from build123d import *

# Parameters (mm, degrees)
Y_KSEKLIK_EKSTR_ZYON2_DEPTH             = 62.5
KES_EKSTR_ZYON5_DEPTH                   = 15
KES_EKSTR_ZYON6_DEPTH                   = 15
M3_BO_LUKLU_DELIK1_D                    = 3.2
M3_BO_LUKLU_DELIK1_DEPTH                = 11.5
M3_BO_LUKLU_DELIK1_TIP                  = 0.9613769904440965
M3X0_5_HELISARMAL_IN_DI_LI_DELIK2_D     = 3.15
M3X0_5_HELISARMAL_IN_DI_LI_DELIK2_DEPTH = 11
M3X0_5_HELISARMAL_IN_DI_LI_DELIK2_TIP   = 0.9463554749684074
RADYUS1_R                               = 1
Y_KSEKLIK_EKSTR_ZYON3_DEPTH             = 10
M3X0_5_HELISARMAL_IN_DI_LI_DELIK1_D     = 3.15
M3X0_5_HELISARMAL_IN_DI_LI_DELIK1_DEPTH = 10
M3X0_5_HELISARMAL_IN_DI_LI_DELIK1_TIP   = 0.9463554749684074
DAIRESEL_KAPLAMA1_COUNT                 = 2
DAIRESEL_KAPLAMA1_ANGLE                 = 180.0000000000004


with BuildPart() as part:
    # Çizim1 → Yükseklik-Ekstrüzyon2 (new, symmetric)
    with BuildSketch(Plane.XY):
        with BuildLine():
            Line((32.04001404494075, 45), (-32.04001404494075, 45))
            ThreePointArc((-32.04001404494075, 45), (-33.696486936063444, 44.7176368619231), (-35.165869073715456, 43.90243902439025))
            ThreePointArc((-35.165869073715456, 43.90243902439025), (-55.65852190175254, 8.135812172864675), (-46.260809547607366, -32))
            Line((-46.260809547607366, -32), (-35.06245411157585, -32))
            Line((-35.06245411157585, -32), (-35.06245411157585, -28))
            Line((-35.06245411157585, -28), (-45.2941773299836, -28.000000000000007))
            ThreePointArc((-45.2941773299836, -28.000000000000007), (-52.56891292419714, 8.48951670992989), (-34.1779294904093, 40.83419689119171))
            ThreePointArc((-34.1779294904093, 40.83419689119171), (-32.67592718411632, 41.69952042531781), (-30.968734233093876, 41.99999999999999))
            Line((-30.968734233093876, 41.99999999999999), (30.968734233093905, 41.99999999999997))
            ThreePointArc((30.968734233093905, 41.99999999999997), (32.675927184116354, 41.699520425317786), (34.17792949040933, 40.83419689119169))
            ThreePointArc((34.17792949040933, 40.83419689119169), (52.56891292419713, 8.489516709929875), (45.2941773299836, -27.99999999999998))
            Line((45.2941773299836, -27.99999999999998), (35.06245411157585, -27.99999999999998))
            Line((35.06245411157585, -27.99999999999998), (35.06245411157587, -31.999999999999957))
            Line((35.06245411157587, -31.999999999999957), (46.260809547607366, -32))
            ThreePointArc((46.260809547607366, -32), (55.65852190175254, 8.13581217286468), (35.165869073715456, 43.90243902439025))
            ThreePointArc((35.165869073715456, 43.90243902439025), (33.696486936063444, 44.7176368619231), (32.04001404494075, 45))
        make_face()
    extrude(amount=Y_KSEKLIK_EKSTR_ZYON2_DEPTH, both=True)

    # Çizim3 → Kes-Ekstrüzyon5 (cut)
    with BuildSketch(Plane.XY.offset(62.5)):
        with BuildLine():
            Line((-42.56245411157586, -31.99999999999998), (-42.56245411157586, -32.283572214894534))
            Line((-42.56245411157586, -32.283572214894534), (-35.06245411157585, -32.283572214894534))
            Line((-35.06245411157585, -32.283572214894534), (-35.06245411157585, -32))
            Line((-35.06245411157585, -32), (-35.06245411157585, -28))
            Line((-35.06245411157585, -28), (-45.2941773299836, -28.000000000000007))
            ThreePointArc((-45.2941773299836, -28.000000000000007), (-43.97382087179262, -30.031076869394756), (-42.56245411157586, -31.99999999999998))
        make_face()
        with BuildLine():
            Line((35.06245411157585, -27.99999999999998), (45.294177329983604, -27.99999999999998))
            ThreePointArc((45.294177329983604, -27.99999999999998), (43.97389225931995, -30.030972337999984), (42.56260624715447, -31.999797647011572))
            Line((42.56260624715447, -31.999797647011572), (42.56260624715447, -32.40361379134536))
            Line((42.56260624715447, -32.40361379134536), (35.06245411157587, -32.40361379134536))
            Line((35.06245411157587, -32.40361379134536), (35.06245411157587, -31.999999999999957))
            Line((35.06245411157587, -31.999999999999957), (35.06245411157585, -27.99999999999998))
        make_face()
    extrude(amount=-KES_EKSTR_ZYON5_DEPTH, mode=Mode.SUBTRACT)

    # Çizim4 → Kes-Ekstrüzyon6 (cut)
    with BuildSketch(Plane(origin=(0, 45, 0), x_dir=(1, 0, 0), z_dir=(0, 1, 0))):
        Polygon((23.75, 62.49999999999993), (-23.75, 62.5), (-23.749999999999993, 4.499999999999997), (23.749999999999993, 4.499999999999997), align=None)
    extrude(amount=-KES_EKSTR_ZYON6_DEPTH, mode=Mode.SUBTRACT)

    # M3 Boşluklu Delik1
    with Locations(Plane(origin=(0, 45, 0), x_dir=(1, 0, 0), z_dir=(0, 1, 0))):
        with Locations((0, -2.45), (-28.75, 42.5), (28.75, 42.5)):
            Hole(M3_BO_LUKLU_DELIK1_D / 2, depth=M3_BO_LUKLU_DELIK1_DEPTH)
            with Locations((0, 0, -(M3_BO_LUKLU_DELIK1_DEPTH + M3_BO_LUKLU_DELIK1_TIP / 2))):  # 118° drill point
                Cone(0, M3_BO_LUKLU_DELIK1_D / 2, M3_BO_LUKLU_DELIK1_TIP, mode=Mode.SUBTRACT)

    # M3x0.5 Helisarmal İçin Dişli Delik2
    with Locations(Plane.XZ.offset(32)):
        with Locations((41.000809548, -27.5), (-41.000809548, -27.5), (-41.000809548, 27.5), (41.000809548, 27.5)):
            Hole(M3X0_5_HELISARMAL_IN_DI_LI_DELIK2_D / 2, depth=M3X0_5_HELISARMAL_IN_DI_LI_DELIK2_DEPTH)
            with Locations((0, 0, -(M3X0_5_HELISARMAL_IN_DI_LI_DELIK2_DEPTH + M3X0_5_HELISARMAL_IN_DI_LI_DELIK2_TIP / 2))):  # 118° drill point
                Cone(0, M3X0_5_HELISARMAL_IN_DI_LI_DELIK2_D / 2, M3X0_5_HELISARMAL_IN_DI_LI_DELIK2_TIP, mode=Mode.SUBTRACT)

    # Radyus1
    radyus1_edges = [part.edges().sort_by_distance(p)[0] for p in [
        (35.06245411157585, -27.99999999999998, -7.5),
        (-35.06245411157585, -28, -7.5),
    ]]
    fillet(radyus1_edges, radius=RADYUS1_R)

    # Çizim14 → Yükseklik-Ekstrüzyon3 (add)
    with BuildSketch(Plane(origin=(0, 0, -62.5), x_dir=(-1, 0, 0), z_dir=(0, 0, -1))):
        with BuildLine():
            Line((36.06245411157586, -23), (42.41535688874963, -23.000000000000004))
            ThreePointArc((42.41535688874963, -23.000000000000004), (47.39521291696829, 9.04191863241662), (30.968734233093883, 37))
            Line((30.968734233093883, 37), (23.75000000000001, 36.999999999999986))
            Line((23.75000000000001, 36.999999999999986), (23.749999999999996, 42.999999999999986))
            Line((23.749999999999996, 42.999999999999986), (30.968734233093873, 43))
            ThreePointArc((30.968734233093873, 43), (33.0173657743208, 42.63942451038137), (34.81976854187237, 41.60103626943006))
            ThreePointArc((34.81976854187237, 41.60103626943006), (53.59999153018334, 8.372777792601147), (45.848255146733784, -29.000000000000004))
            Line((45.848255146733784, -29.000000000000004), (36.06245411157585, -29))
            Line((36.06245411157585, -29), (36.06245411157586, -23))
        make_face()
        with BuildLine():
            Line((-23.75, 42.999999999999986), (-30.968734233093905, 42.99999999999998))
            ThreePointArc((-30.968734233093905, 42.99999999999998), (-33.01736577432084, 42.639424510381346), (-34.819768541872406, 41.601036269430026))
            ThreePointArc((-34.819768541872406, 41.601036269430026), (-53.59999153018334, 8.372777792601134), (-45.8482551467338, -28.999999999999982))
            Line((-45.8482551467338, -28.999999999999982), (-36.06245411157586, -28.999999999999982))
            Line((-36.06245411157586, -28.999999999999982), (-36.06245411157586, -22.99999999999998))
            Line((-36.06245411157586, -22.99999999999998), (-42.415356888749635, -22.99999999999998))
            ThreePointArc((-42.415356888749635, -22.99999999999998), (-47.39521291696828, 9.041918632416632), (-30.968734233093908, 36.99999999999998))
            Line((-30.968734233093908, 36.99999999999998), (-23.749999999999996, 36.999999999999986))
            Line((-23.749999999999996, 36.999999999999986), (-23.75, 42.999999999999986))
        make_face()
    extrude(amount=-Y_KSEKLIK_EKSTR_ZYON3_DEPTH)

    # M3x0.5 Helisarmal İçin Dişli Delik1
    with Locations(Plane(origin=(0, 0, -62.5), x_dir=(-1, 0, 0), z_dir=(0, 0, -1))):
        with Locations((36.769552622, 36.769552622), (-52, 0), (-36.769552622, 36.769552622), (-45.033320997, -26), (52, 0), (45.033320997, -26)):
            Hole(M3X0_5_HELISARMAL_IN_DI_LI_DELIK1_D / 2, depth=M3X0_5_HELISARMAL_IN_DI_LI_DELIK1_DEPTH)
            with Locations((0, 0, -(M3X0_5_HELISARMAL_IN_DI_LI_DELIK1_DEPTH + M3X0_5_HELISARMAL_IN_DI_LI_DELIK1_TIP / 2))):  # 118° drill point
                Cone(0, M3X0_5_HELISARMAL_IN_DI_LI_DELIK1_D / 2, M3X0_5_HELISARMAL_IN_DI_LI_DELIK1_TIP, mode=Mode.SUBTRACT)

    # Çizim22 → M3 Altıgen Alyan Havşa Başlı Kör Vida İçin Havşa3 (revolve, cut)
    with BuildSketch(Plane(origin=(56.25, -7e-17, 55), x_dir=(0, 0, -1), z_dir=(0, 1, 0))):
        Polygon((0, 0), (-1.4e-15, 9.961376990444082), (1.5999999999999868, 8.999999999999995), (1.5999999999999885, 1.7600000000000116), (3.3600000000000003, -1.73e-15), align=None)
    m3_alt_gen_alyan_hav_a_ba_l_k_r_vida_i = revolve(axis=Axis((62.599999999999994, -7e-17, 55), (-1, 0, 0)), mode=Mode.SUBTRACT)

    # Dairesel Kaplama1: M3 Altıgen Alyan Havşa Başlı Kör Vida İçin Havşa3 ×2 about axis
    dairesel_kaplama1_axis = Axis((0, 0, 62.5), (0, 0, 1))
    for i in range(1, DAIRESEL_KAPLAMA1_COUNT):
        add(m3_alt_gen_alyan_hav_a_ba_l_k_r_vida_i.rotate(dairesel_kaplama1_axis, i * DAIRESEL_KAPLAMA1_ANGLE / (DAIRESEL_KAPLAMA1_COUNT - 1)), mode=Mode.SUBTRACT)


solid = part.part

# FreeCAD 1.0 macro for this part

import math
import FreeCAD as App
import Part
import Sketcher
Q = App.Units.Quantity


def edges_at(feature, points):
    """Names of the edges that pass closest to the given points."""
    edges = feature.Shape.Edges
    near = lambda p: min(range(len(edges)), key=lambda i: edges[i].distToShape(Part.Vertex(*p))[0])
    return sorted({f"Edge{near(p) + 1}" for p in points})

doc = App.newDocument("Part")
body = doc.addObject("PartDesign::Body", "Body")

# Sketch on XY plane
sketch1 = doc.addObject("Sketcher::SketchObject", "Sketch")
body.addObject(sketch1)
sketch1.AttachmentSupport = (doc.XY_Plane, [""])
sketch1.MapMode = "FlatFace"
sketch1.addGeometry(Part.LineSegment(App.Vector(32, 45, 0), App.Vector(-32, 45, 0)), False)
sketch1.addGeometry(Part.ArcOfCircle(Part.Circle(App.Vector(-32, 40, 0), App.Vector(0, 0, 1), 5), math.radians(90), math.radians(129)), False)
sketch1.addGeometry(Part.ArcOfCircle(Part.Circle(App.Vector(0, 0, 0), App.Vector(0, 0, 1), 56.2), math.radians(129), math.radians(215)), False)
sketch1.addGeometry(Part.LineSegment(App.Vector(-46.3, -32, 0), App.Vector(-35.1, -32, 0)), False)
sketch1.addGeometry(Part.LineSegment(App.Vector(-35.1, -32, 0), App.Vector(-35.1, -28, 0)), False)
sketch1.addGeometry(Part.LineSegment(App.Vector(-35.1, -28, 0), App.Vector(-45.3, -28, 0)), False)
sketch1.addGeometry(Part.ArcOfCircle(Part.Circle(App.Vector(0, 0, 0), App.Vector(0, 0, 1), 53.2), math.radians(130), math.radians(212)), False)
sketch1.addGeometry(Part.ArcOfCircle(Part.Circle(App.Vector(-31, 37, 0), App.Vector(0, 0, 1), 5), math.radians(90), math.radians(130)), False)
sketch1.addGeometry(Part.LineSegment(App.Vector(-31, 42, 0), App.Vector(31, 42, 0)), False)
sketch1.addGeometry(Part.ArcOfCircle(Part.Circle(App.Vector(31, 37, 0), App.Vector(0, 0, 1), 5), math.radians(50), math.radians(90)), False)
sketch1.addGeometry(Part.ArcOfCircle(Part.Circle(App.Vector(0, 0, 0), App.Vector(0, 0, 1), 53.2), math.radians(-32), math.radians(50)), False)
sketch1.addGeometry(Part.LineSegment(App.Vector(45.3, -28, 0), App.Vector(35.1, -28, 0)), False)
sketch1.addGeometry(Part.LineSegment(App.Vector(35.1, -28, 0), App.Vector(35.1, -32, 0)), False)
sketch1.addGeometry(Part.LineSegment(App.Vector(35.1, -32, 0), App.Vector(46.3, -32, 0)), False)
sketch1.addGeometry(Part.ArcOfCircle(Part.Circle(App.Vector(0, 0, 0), App.Vector(0, 0, 1), 56.2), math.radians(-35), math.radians(51)), False)
sketch1.addGeometry(Part.ArcOfCircle(Part.Circle(App.Vector(32, 40, 0), App.Vector(0, 0, 1), 5), math.radians(51), math.radians(90)), False)
sketch1.addConstraint(Sketcher.Constraint("Tangent", 0, 2, 1, 1))
sketch1.addConstraint(Sketcher.Constraint("Tangent", 1, 2, 2, 1))
sketch1.addConstraint(Sketcher.Constraint("Coincident", 2, 2, 3, 1))
sketch1.addConstraint(Sketcher.Constraint("Coincident", 3, 2, 4, 1))
sketch1.addConstraint(Sketcher.Constraint("Coincident", 4, 2, 5, 1))
sketch1.addConstraint(Sketcher.Constraint("Coincident", 5, 2, 6, 2))
sketch1.addConstraint(Sketcher.Constraint("Tangent", 6, 1, 7, 2))
sketch1.addConstraint(Sketcher.Constraint("Tangent", 7, 1, 8, 1))
sketch1.addConstraint(Sketcher.Constraint("Tangent", 8, 2, 9, 2))
sketch1.addConstraint(Sketcher.Constraint("Tangent", 9, 1, 10, 2))
sketch1.addConstraint(Sketcher.Constraint("Coincident", 10, 1, 11, 1))
sketch1.addConstraint(Sketcher.Constraint("Coincident", 11, 2, 12, 1))
sketch1.addConstraint(Sketcher.Constraint("Coincident", 12, 2, 13, 1))
sketch1.addConstraint(Sketcher.Constraint("Coincident", 13, 2, 14, 1))
sketch1.addConstraint(Sketcher.Constraint("Tangent", 14, 2, 15, 1))
sketch1.addConstraint(Sketcher.Constraint("Tangent", 15, 2, 0, 1))
sketch1.addConstraint(Sketcher.Constraint("Horizontal", 0))
sketch1.addConstraint(Sketcher.Constraint("Horizontal", 3))
sketch1.addConstraint(Sketcher.Constraint("Vertical", 4))
sketch1.addConstraint(Sketcher.Constraint("Horizontal", 5))
sketch1.addConstraint(Sketcher.Constraint("Horizontal", 8))
sketch1.addConstraint(Sketcher.Constraint("Horizontal", 11))
sketch1.addConstraint(Sketcher.Constraint("Vertical", 12))
sketch1.addConstraint(Sketcher.Constraint("Horizontal", 13))
sketch1.addConstraint(Sketcher.Constraint("Coincident", 2, 3, -1, 1))
sketch1.addConstraint(Sketcher.Constraint("Coincident", 6, 3, -1, 1))
sketch1.addConstraint(Sketcher.Constraint("Coincident", 10, 3, -1, 1))
sketch1.addConstraint(Sketcher.Constraint("Coincident", 14, 3, -1, 1))
sketch1.addConstraint(Sketcher.Constraint("Equal", 1, 7))
sketch1.addConstraint(Sketcher.Constraint("Equal", 7, 9))
sketch1.addConstraint(Sketcher.Constraint("Equal", 6, 10))
sketch1.addConstraint(Sketcher.Constraint("Equal", 2, 14))
sketch1.addConstraint(Sketcher.Constraint("Equal", 9, 15))
sketch1.addConstraint(Sketcher.Constraint("Symmetric", 4, 2, 11, 2, -2))
sketch1.addConstraint(Sketcher.Constraint("Horizontal", 3, 2, 12, 2))
sketch1.addConstraint(Sketcher.Constraint("Radius", 1, Q("5 mm")))
sketch1.addConstraint(Sketcher.Constraint("DistanceY", 4, 1, 4, 2, Q("4 mm")))
sketch1.addConstraint(Sketcher.Constraint("Radius", 2, Q("56.25 mm")))
sketch1.addConstraint(Sketcher.Constraint("Radius", 6, Q("53.25 mm")))
sketch1.addConstraint(Sketcher.Constraint("DistanceY", -1, 1, 1, 3, Q("40 mm")))
sketch1.addConstraint(Sketcher.Constraint("DistanceY", -1, 1, 7, 3, Q("37 mm")))
sketch1.addConstraint(Sketcher.Constraint("DistanceY", 2, 2, -1, 1, Q("32 mm")))
sketch1.addConstraint(Sketcher.Constraint("DistanceX", 3, 1, 3, 2, Q("11.198355 mm")))
pad1 = doc.addObject("PartDesign::Pad", "Pad")
body.addObject(pad1)
pad1.Profile = sketch1
pad1.Length = 125
pad1.Midplane = True

# Sketch on XY plane
sketch2 = doc.addObject("Sketcher::SketchObject", "Sketch001")
body.addObject(sketch2)
sketch2.AttachmentSupport = (doc.XY_Plane, [""])
sketch2.MapMode = "FlatFace"
sketch2.AttachmentOffset = App.Placement(App.Vector(0, 0, 62.5), App.Rotation())
sketch2.addGeometry(Part.LineSegment(App.Vector(-42.56, -32, 0), App.Vector(-42.56, -32.28, 0)), False)
sketch2.addGeometry(Part.LineSegment(App.Vector(-42.56, -32.28, 0), App.Vector(-35.06, -32.28, 0)), False)
sketch2.addGeometry(Part.LineSegment(App.Vector(-35.06, -32.28, 0), App.Vector(-35.06, -28, 0)), False)
sketch2.addGeometry(Part.LineSegment(App.Vector(-35.06, -28, 0), App.Vector(-45.29, -28, 0)), False)
sketch2.addGeometry(Part.ArcOfCircle(Part.Circle(App.Vector(0, 0, 0), App.Vector(0, 0, 1), 53.25), math.radians(-148.28), math.radians(-143.06)), False)
sketch2.addGeometry(Part.LineSegment(App.Vector(45.29, -28, 0), App.Vector(35.06, -28, 0)), False)
sketch2.addGeometry(Part.LineSegment(App.Vector(35.06, -28, 0), App.Vector(35.06, -32.4, 0)), False)
sketch2.addGeometry(Part.LineSegment(App.Vector(35.06, -32.4, 0), App.Vector(42.56, -32.4, 0)), False)
sketch2.addGeometry(Part.LineSegment(App.Vector(42.56, -32.4, 0), App.Vector(42.56, -32, 0)), False)
sketch2.addGeometry(Part.ArcOfCircle(Part.Circle(App.Vector(0, 0, 0), App.Vector(0, 0, 1), 53.25), math.radians(-36.94), math.radians(-31.72)), False)
sketch2.addConstraint(Sketcher.Constraint("Coincident", 0, 2, 1, 1))
sketch2.addConstraint(Sketcher.Constraint("Coincident", 1, 2, 2, 1))
sketch2.addConstraint(Sketcher.Constraint("Coincident", 2, 2, 3, 1))
sketch2.addConstraint(Sketcher.Constraint("Coincident", 3, 2, 4, 1))
sketch2.addConstraint(Sketcher.Constraint("Coincident", 4, 2, 0, 1))
sketch2.addConstraint(Sketcher.Constraint("Coincident", 5, 2, 6, 1))
sketch2.addConstraint(Sketcher.Constraint("Coincident", 6, 2, 7, 1))
sketch2.addConstraint(Sketcher.Constraint("Coincident", 7, 2, 8, 1))
sketch2.addConstraint(Sketcher.Constraint("Coincident", 8, 2, 9, 1))
sketch2.addConstraint(Sketcher.Constraint("Coincident", 9, 2, 5, 1))
sketch2.addConstraint(Sketcher.Constraint("Vertical", 0))
sketch2.addConstraint(Sketcher.Constraint("Horizontal", 1))
sketch2.addConstraint(Sketcher.Constraint("Vertical", 2))
sketch2.addConstraint(Sketcher.Constraint("Horizontal", 3))
sketch2.addConstraint(Sketcher.Constraint("Horizontal", 5))
sketch2.addConstraint(Sketcher.Constraint("Vertical", 6))
sketch2.addConstraint(Sketcher.Constraint("Horizontal", 7))
sketch2.addConstraint(Sketcher.Constraint("Vertical", 8))
sketch2.addConstraint(Sketcher.Constraint("Coincident", 4, 3, -1, 1))
sketch2.addConstraint(Sketcher.Constraint("Coincident", 9, 3, -1, 1))
sketch2.addConstraint(Sketcher.Constraint("Equal", 4, 9))
sketch2.addConstraint(Sketcher.Constraint("Symmetric", 2, 2, 5, 2, -2))
sketch2.addConstraint(Sketcher.Constraint("Radius", 4, Q("53.25 mm")))
sketch2.addConstraint(Sketcher.Constraint("DistanceX", 1, 1, 1, 2, Q("7.5 mm")))
sketch2.addConstraint(Sketcher.Constraint("DistanceY", 2, 2, -1, 1, Q("28 mm")))
sketch2.addConstraint(Sketcher.Constraint("DistanceY", 4, 2, -1, 1, Q("32 mm")))
sketch2.addConstraint(Sketcher.Constraint("DistanceX", 7, 1, 7, 2, Q("7.500152 mm")))
sketch2.addConstraint(Sketcher.Constraint("DistanceY", 0, 2, 0, 1, Q("0.283572 mm")))
sketch2.addConstraint(Sketcher.Constraint("DistanceY", 6, 2, 6, 1, Q("4.403614 mm")))
pocket1 = doc.addObject("PartDesign::Pocket", "Pocket")
body.addObject(pocket1)
pocket1.Profile = sketch2
pocket1.Length = 15

# Sketch on XZ plane
sketch3 = doc.addObject("Sketcher::SketchObject", "Sketch002")
body.addObject(sketch3)
sketch3.AttachmentSupport = (doc.XZ_Plane, [""])
sketch3.MapMode = "FlatFace"
sketch3.AttachmentOffset = App.Placement(App.Vector(0, 0, -45), App.Rotation())
sketch3.addGeometry(Part.LineSegment(App.Vector(24, -62, 0), App.Vector(-24, -62, 0)), False)
sketch3.addGeometry(Part.LineSegment(App.Vector(-24, -62, 0), App.Vector(-24, -4, 0)), False)
sketch3.addGeometry(Part.LineSegment(App.Vector(-24, -4, 0), App.Vector(24, -4, 0)), False)
sketch3.addGeometry(Part.LineSegment(App.Vector(24, -4, 0), App.Vector(24, -62, 0)), False)
sketch3.addConstraint(Sketcher.Constraint("Coincident", 0, 2, 1, 1))
sketch3.addConstraint(Sketcher.Constraint("Coincident", 1, 2, 2, 1))
sketch3.addConstraint(Sketcher.Constraint("Coincident", 2, 2, 3, 1))
sketch3.addConstraint(Sketcher.Constraint("Coincident", 3, 2, 0, 1))
sketch3.addConstraint(Sketcher.Constraint("Horizontal", 0))
sketch3.addConstraint(Sketcher.Constraint("Vertical", 1))
sketch3.addConstraint(Sketcher.Constraint("Horizontal", 2))
sketch3.addConstraint(Sketcher.Constraint("Vertical", 3))
sketch3.addConstraint(Sketcher.Constraint("DistanceY", 1, 1, 1, 2, Q("58 mm")))
sketch3.addConstraint(Sketcher.Constraint("DistanceX", 0, 2, 0, 1, Q("47.5 mm")))
sketch3.addConstraint(Sketcher.Constraint("DistanceY", 0, 2, -1, 1, Q("62.5 mm")))
sketch3.addConstraint(Sketcher.Constraint("DistanceX", 0, 2, -1, 1, Q("23.75 mm")))
pocket2 = doc.addObject("PartDesign::Pocket", "Pocket001")
body.addObject(pocket2)
pocket2.Profile = sketch3
pocket2.Length = 15
pocket2.Reversed = True

# Sketch on XZ plane
sketch4 = doc.addObject("Sketcher::SketchObject", "Sketch003")
body.addObject(sketch4)
sketch4.AttachmentSupport = (doc.XZ_Plane, [""])
sketch4.MapMode = "FlatFace"
sketch4.AttachmentOffset = App.Placement(App.Vector(0, 0, -45), App.Rotation())
sketch4.addGeometry(Part.Circle(App.Vector(0, 2.5, 0), App.Vector(0, 0, 1), 1.6), False)
sketch4.addGeometry(Part.Circle(App.Vector(-28.8, -42.5, 0), App.Vector(0, 0, 1), 1.6), False)
sketch4.addGeometry(Part.Circle(App.Vector(28.8, -42.5, 0), App.Vector(0, 0, 1), 1.6), False)
sketch4.addConstraint(Sketcher.Constraint("Equal", 0, 1))
sketch4.addConstraint(Sketcher.Constraint("Equal", 1, 2))
sketch4.addConstraint(Sketcher.Constraint("Symmetric", 1, 3, 2, 3, -2))
sketch4.addConstraint(Sketcher.Constraint("PointOnObject", 0, 3, -2))
sketch4.addConstraint(Sketcher.Constraint("Diameter", 0, Q("3.2 mm")))
sketch4.addConstraint(Sketcher.Constraint("DistanceY", 1, 3, -1, 1, Q("42.5 mm")))
sketch4.addConstraint(Sketcher.Constraint("DistanceX", 1, 3, 2, 3, Q("57.5 mm")))
sketch4.addConstraint(Sketcher.Constraint("DistanceY", -1, 1, 0, 3, Q("2.45 mm")))
doc.recompute()
hole = doc.addObject("PartDesign::Hole", "Hole")
body.addObject(hole)
hole.Profile = sketch4
hole.ThreadType = "None"
hole.Diameter = 3.2
hole.DepthType = "Dimension"
hole.Depth = 11.5
hole.DrillPoint = "Angled"
hole.DrillPointAngle = 118
hole.Reversed = True

# Sketch on XZ plane
sketch5 = doc.addObject("Sketcher::SketchObject", "Sketch004")
body.addObject(sketch5)
sketch5.AttachmentSupport = (doc.XZ_Plane, [""])
sketch5.MapMode = "FlatFace"
sketch5.AttachmentOffset = App.Placement(App.Vector(0, 0, 32), App.Rotation())
sketch5.addGeometry(Part.Circle(App.Vector(41, -27.5, 0), App.Vector(0, 0, 1), 1.6), False)
sketch5.addGeometry(Part.Circle(App.Vector(-41, -27.5, 0), App.Vector(0, 0, 1), 1.6), False)
sketch5.addGeometry(Part.Circle(App.Vector(-41, 27.5, 0), App.Vector(0, 0, 1), 1.6), False)
sketch5.addGeometry(Part.Circle(App.Vector(41, 27.5, 0), App.Vector(0, 0, 1), 1.6), False)
sketch5.addConstraint(Sketcher.Constraint("Equal", 0, 1))
sketch5.addConstraint(Sketcher.Constraint("Equal", 1, 2))
sketch5.addConstraint(Sketcher.Constraint("Equal", 2, 3))
sketch5.addConstraint(Sketcher.Constraint("Symmetric", 0, 3, 2, 3, -1, 1))
sketch5.addConstraint(Sketcher.Constraint("Symmetric", 1, 3, 3, 3, -1, 1))
sketch5.addConstraint(Sketcher.Constraint("Symmetric", 0, 3, 1, 3, -2))
sketch5.addConstraint(Sketcher.Constraint("Diameter", 0, Q("3.15 mm")))
sketch5.addConstraint(Sketcher.Constraint("DistanceY", 1, 3, 2, 3, Q("55 mm")))
sketch5.addConstraint(Sketcher.Constraint("DistanceX", -1, 1, 0, 3, Q("41.00081 mm")))
doc.recompute()
hole2 = doc.addObject("PartDesign::Hole", "Hole001")
body.addObject(hole2)
hole2.Profile = sketch5
hole2.ThreadType = "None"
hole2.Diameter = 3.15
hole2.DepthType = "Dimension"
hole2.Depth = 11
hole2.DrillPoint = "Angled"
hole2.DrillPointAngle = 118
doc.recompute()

fillet = doc.addObject("PartDesign::Fillet", "Fillet")
body.addObject(fillet)
fillet.Base = (hole2, edges_at(hole2, [(35.062, -28, -7.5), (-35.062, -28, -7.5)]))
fillet.Radius = 1

# Sketch on XY plane
sketch6 = doc.addObject("Sketcher::SketchObject", "Sketch005")
body.addObject(sketch6)
sketch6.AttachmentSupport = (doc.XY_Plane, [""])
sketch6.MapMode = "FlatFace"
sketch6.AttachmentOffset = App.Placement(App.Vector(0, 0, -62.5), App.Rotation())
sketch6.addGeometry(Part.LineSegment(App.Vector(-42.4, -23, 0), App.Vector(-36.1, -23, 0)), False)
sketch6.addGeometry(Part.LineSegment(App.Vector(-36.1, -23, 0), App.Vector(-36.1, -29, 0)), False)
sketch6.addGeometry(Part.LineSegment(App.Vector(-36.1, -29, 0), App.Vector(-45.8, -29, 0)), False)
sketch6.addGeometry(Part.ArcOfCircle(Part.Circle(App.Vector(0, 0, 0), App.Vector(0, 0, 1), 54.2), math.radians(130), math.radians(212)), False)
sketch6.addGeometry(Part.ArcOfCircle(Part.Circle(App.Vector(-31, 37, 0), App.Vector(0, 0, 1), 6), math.radians(90), math.radians(130)), False)
sketch6.addGeometry(Part.LineSegment(App.Vector(-31, 43, 0), App.Vector(-23.8, 43, 0)), False)
sketch6.addGeometry(Part.LineSegment(App.Vector(-23.8, 43, 0), App.Vector(-23.8, 37, 0)), False)
sketch6.addGeometry(Part.LineSegment(App.Vector(-23.8, 37, 0), App.Vector(-31, 37, 0)), False)
sketch6.addGeometry(Part.ArcOfCircle(Part.Circle(App.Vector(0, 0, 0), App.Vector(0, 0, 1), 48.2), math.radians(130), math.radians(208)), False)
sketch6.addGeometry(Part.LineSegment(App.Vector(23.8, 43, 0), App.Vector(31, 43, 0)), False)
sketch6.addGeometry(Part.ArcOfCircle(Part.Circle(App.Vector(31, 37, 0), App.Vector(0, 0, 1), 6), math.radians(50), math.radians(90)), False)
sketch6.addGeometry(Part.ArcOfCircle(Part.Circle(App.Vector(0, 0, 0), App.Vector(0, 0, 1), 54.2), math.radians(-32), math.radians(50)), False)
sketch6.addGeometry(Part.LineSegment(App.Vector(45.8, -29, 0), App.Vector(36.1, -29, 0)), False)
sketch6.addGeometry(Part.LineSegment(App.Vector(36.1, -29, 0), App.Vector(36.1, -23, 0)), False)
sketch6.addGeometry(Part.LineSegment(App.Vector(36.1, -23, 0), App.Vector(42.4, -23, 0)), False)
sketch6.addGeometry(Part.ArcOfCircle(Part.Circle(App.Vector(0, 0, 0), App.Vector(0, 0, 1), 48.2), math.radians(-28), math.radians(50)), False)
sketch6.addGeometry(Part.LineSegment(App.Vector(31, 37, 0), App.Vector(23.8, 37, 0)), False)
sketch6.addGeometry(Part.LineSegment(App.Vector(23.8, 37, 0), App.Vector(23.8, 43, 0)), False)
sketch6.addConstraint(Sketcher.Constraint("Coincident", 0, 2, 1, 1))
sketch6.addConstraint(Sketcher.Constraint("Coincident", 1, 2, 2, 1))
sketch6.addConstraint(Sketcher.Constraint("Coincident", 2, 2, 3, 2))
sketch6.addConstraint(Sketcher.Constraint("Tangent", 3, 1, 4, 2))
sketch6.addConstraint(Sketcher.Constraint("Tangent", 4, 1, 5, 1))
sketch6.addConstraint(Sketcher.Constraint("Coincident", 5, 2, 6, 1))
sketch6.addConstraint(Sketcher.Constraint("Coincident", 6, 2, 7, 1))
sketch6.addConstraint(Sketcher.Constraint("Coincident", 7, 2, 8, 1))
sketch6.addConstraint(Sketcher.Constraint("Coincident", 8, 2, 0, 1))
sketch6.addConstraint(Sketcher.Constraint("Tangent", 9, 2, 10, 2))
sketch6.addConstraint(Sketcher.Constraint("Tangent", 10, 1, 11, 2))
sketch6.addConstraint(Sketcher.Constraint("Coincident", 11, 1, 12, 1))
sketch6.addConstraint(Sketcher.Constraint("Coincident", 12, 2, 13, 1))
sketch6.addConstraint(Sketcher.Constraint("Coincident", 13, 2, 14, 1))
sketch6.addConstraint(Sketcher.Constraint("Coincident", 14, 2, 15, 1))
sketch6.addConstraint(Sketcher.Constraint("Coincident", 15, 2, 16, 1))
sketch6.addConstraint(Sketcher.Constraint("Coincident", 16, 2, 17, 1))
sketch6.addConstraint(Sketcher.Constraint("Coincident", 17, 2, 9, 1))
sketch6.addConstraint(Sketcher.Constraint("Horizontal", 0))
sketch6.addConstraint(Sketcher.Constraint("Vertical", 1))
sketch6.addConstraint(Sketcher.Constraint("Horizontal", 2))
sketch6.addConstraint(Sketcher.Constraint("Horizontal", 5))
sketch6.addConstraint(Sketcher.Constraint("Vertical", 6))
sketch6.addConstraint(Sketcher.Constraint("Horizontal", 7))
sketch6.addConstraint(Sketcher.Constraint("Horizontal", 9))
sketch6.addConstraint(Sketcher.Constraint("Horizontal", 12))
sketch6.addConstraint(Sketcher.Constraint("Vertical", 13))
sketch6.addConstraint(Sketcher.Constraint("Horizontal", 14))
sketch6.addConstraint(Sketcher.Constraint("Horizontal", 16))
sketch6.addConstraint(Sketcher.Constraint("Vertical", 17))
sketch6.addConstraint(Sketcher.Constraint("Coincident", 3, 3, -1, 1))
sketch6.addConstraint(Sketcher.Constraint("Coincident", 8, 3, -1, 1))
sketch6.addConstraint(Sketcher.Constraint("Coincident", 11, 3, -1, 1))
sketch6.addConstraint(Sketcher.Constraint("Coincident", 15, 3, -1, 1))
sketch6.addConstraint(Sketcher.Constraint("Coincident", 7, 2, 4, 3))
sketch6.addConstraint(Sketcher.Constraint("Coincident", 15, 2, 10, 3))
sketch6.addConstraint(Sketcher.Constraint("Equal", 4, 10))
sketch6.addConstraint(Sketcher.Constraint("Equal", 3, 11))
sketch6.addConstraint(Sketcher.Constraint("Symmetric", 1, 2, 12, 2, -2))
sketch6.addConstraint(Sketcher.Constraint("Symmetric", 6, 2, 16, 2, -2))
sketch6.addConstraint(Sketcher.Constraint("Horizontal", 8, 2, 13, 2))
sketch6.addConstraint(Sketcher.Constraint("Equal", 1, 6))
sketch6.addConstraint(Sketcher.Constraint("Radius", 4, Q("6 mm")))
sketch6.addConstraint(Sketcher.Constraint("Radius", 3, Q("54.25 mm")))
sketch6.addConstraint(Sketcher.Constraint("DistanceY", -1, 1, 4, 3, Q("37 mm")))
sketch6.addConstraint(Sketcher.Constraint("DistanceY", 0, 2, -1, 1, Q("23 mm")))
sketch6.addConstraint(Sketcher.Constraint("DistanceX", 5, 2, -1, 1, Q("23.75 mm")))
sketch6.addConstraint(Sketcher.Constraint("DistanceX", 2, 2, 2, 1, Q("9.785801 mm")))
pad2 = doc.addObject("PartDesign::Pad", "Pad001")
body.addObject(pad2)
pad2.Profile = sketch6
pad2.Length = 10

# Sketch on XY plane
sketch7 = doc.addObject("Sketcher::SketchObject", "Sketch006")
body.addObject(sketch7)
sketch7.AttachmentSupport = (doc.XY_Plane, [""])
sketch7.MapMode = "FlatFace"
sketch7.AttachmentOffset = App.Placement(App.Vector(0, 0, -62.5), App.Rotation())
sketch7.addGeometry(Part.Circle(App.Vector(-36.8, 36.8, 0), App.Vector(0, 0, 1), 1.6), False)
sketch7.addGeometry(Part.Circle(App.Vector(52, 0, 0), App.Vector(0, 0, 1), 1.6), False)
sketch7.addGeometry(Part.Circle(App.Vector(36.8, 36.8, 0), App.Vector(0, 0, 1), 1.6), False)
sketch7.addGeometry(Part.Circle(App.Vector(45, -26, 0), App.Vector(0, 0, 1), 1.6), False)
sketch7.addGeometry(Part.Circle(App.Vector(-52, 0, 0), App.Vector(0, 0, 1), 1.6), False)
sketch7.addGeometry(Part.Circle(App.Vector(-45, -26, 0), App.Vector(0, 0, 1), 1.6), False)
sketch7.addConstraint(Sketcher.Constraint("Equal", 0, 1))
sketch7.addConstraint(Sketcher.Constraint("Equal", 1, 2))
sketch7.addConstraint(Sketcher.Constraint("Equal", 2, 3))
sketch7.addConstraint(Sketcher.Constraint("Equal", 3, 4))
sketch7.addConstraint(Sketcher.Constraint("Equal", 4, 5))
sketch7.addConstraint(Sketcher.Constraint("Symmetric", 1, 3, 4, 3, -1, 1))
sketch7.addConstraint(Sketcher.Constraint("Symmetric", 0, 3, 2, 3, -2))
sketch7.addConstraint(Sketcher.Constraint("Symmetric", 3, 3, 5, 3, -2))
sketch7.addConstraint(Sketcher.Constraint("PointOnObject", 1, 3, -1))
sketch7.addConstraint(Sketcher.Constraint("Diameter", 0, Q("3.15 mm")))
sketch7.addConstraint(Sketcher.Constraint("DistanceX", -1, 1, 1, 3, Q("52 mm")))
sketch7.addConstraint(Sketcher.Constraint("DistanceY", 3, 3, -1, 1, Q("26 mm")))
sketch7.addConstraint(Sketcher.Constraint("DistanceX", -1, 1, 3, 3, Q("45.033321 mm")))
sketch7.addConstraint(Sketcher.Constraint("DistanceX", 2, 3, 3, 3, Q("8.263768 mm")))
sketch7.addConstraint(Sketcher.Constraint("DistanceY", -1, 1, 0, 3, Q("36.769553 mm")))
doc.recompute()
hole3 = doc.addObject("PartDesign::Hole", "Hole002")
body.addObject(hole3)
hole3.Profile = sketch7
hole3.ThreadType = "None"
hole3.Diameter = 3.15
hole3.DepthType = "Dimension"
hole3.Depth = 10
hole3.DrillPoint = "Angled"
hole3.DrillPointAngle = 118
hole3.Reversed = True

# Sketch on XZ plane
sketch8 = doc.addObject("Sketcher::SketchObject", "Sketch007")
body.addObject(sketch8)
sketch8.AttachmentSupport = (doc.XZ_Plane, [""])
sketch8.MapMode = "FlatFace"
sketch8.addGeometry(Part.LineSegment(App.Vector(46.3, 55, 0), App.Vector(56.2, 55, 0)), False)
sketch8.addGeometry(Part.LineSegment(App.Vector(56.2, 55, 0), App.Vector(56.2, 51.6, 0)), False)
sketch8.addGeometry(Part.LineSegment(App.Vector(56.2, 51.6, 0), App.Vector(54.5, 53.4, 0)), False)
sketch8.addGeometry(Part.LineSegment(App.Vector(54.5, 53.4, 0), App.Vector(47.2, 53.4, 0)), False)
sketch8.addGeometry(Part.LineSegment(App.Vector(47.2, 53.4, 0), App.Vector(46.3, 55, 0)), False)
sketch8.addGeometry(Part.LineSegment(App.Vector(56.2, 55, 0), App.Vector(46.3, 55, 0)), True)  # axis
sketch8.addConstraint(Sketcher.Constraint("Coincident", 0, 2, 1, 1))
sketch8.addConstraint(Sketcher.Constraint("Coincident", 1, 2, 2, 1))
sketch8.addConstraint(Sketcher.Constraint("Coincident", 2, 2, 3, 1))
sketch8.addConstraint(Sketcher.Constraint("Coincident", 3, 2, 4, 1))
sketch8.addConstraint(Sketcher.Constraint("Coincident", 4, 2, 0, 1))
sketch8.addConstraint(Sketcher.Constraint("Horizontal", 0))
sketch8.addConstraint(Sketcher.Constraint("Vertical", 1))
sketch8.addConstraint(Sketcher.Constraint("Horizontal", 3))
sketch8.addConstraint(Sketcher.Constraint("Horizontal", 5))
sketch8.addConstraint(Sketcher.Constraint("Coincident", 5, 1, 0, 2))
sketch8.addConstraint(Sketcher.Constraint("Equal", 0, 5))
sketch8.addConstraint(Sketcher.Constraint("Angle", 2, Q("135 deg")))
sketch8.addConstraint(Sketcher.Constraint("Angle", 4, Q("121 deg")))
sketch8.addConstraint(Sketcher.Constraint("DistanceY", -1, 1, 0, 2, Q("55 mm")))
sketch8.addConstraint(Sketcher.Constraint("DistanceX", 3, 2, 0, 2, Q("9 mm")))
sketch8.addConstraint(Sketcher.Constraint("DistanceX", 3, 2, 3, 1, Q("7.24 mm")))
sketch8.addConstraint(Sketcher.Constraint("DistanceY", 1, 2, 1, 1, Q("3.36 mm")))
sketch8.addConstraint(Sketcher.Constraint("DistanceX", -1, 1, 0, 2, Q("56.25 mm")))
groove = doc.addObject("PartDesign::Groove", "Groove")
body.addObject(groove)
groove.Profile = sketch8
groove.ReferenceAxis = (sketch8, ["Axis0"])
groove.Angle = 360
doc.recompute()

polarpattern = doc.addObject("PartDesign::PolarPattern", "PolarPattern")
body.addObject(polarpattern)
polarpattern.Originals = [groove]
polarpattern.Axis = (doc.Z_Axis, [""])
polarpattern.Angle = 360
polarpattern.Occurrences = 2
body.Tip = polarpattern

doc.recompute()
